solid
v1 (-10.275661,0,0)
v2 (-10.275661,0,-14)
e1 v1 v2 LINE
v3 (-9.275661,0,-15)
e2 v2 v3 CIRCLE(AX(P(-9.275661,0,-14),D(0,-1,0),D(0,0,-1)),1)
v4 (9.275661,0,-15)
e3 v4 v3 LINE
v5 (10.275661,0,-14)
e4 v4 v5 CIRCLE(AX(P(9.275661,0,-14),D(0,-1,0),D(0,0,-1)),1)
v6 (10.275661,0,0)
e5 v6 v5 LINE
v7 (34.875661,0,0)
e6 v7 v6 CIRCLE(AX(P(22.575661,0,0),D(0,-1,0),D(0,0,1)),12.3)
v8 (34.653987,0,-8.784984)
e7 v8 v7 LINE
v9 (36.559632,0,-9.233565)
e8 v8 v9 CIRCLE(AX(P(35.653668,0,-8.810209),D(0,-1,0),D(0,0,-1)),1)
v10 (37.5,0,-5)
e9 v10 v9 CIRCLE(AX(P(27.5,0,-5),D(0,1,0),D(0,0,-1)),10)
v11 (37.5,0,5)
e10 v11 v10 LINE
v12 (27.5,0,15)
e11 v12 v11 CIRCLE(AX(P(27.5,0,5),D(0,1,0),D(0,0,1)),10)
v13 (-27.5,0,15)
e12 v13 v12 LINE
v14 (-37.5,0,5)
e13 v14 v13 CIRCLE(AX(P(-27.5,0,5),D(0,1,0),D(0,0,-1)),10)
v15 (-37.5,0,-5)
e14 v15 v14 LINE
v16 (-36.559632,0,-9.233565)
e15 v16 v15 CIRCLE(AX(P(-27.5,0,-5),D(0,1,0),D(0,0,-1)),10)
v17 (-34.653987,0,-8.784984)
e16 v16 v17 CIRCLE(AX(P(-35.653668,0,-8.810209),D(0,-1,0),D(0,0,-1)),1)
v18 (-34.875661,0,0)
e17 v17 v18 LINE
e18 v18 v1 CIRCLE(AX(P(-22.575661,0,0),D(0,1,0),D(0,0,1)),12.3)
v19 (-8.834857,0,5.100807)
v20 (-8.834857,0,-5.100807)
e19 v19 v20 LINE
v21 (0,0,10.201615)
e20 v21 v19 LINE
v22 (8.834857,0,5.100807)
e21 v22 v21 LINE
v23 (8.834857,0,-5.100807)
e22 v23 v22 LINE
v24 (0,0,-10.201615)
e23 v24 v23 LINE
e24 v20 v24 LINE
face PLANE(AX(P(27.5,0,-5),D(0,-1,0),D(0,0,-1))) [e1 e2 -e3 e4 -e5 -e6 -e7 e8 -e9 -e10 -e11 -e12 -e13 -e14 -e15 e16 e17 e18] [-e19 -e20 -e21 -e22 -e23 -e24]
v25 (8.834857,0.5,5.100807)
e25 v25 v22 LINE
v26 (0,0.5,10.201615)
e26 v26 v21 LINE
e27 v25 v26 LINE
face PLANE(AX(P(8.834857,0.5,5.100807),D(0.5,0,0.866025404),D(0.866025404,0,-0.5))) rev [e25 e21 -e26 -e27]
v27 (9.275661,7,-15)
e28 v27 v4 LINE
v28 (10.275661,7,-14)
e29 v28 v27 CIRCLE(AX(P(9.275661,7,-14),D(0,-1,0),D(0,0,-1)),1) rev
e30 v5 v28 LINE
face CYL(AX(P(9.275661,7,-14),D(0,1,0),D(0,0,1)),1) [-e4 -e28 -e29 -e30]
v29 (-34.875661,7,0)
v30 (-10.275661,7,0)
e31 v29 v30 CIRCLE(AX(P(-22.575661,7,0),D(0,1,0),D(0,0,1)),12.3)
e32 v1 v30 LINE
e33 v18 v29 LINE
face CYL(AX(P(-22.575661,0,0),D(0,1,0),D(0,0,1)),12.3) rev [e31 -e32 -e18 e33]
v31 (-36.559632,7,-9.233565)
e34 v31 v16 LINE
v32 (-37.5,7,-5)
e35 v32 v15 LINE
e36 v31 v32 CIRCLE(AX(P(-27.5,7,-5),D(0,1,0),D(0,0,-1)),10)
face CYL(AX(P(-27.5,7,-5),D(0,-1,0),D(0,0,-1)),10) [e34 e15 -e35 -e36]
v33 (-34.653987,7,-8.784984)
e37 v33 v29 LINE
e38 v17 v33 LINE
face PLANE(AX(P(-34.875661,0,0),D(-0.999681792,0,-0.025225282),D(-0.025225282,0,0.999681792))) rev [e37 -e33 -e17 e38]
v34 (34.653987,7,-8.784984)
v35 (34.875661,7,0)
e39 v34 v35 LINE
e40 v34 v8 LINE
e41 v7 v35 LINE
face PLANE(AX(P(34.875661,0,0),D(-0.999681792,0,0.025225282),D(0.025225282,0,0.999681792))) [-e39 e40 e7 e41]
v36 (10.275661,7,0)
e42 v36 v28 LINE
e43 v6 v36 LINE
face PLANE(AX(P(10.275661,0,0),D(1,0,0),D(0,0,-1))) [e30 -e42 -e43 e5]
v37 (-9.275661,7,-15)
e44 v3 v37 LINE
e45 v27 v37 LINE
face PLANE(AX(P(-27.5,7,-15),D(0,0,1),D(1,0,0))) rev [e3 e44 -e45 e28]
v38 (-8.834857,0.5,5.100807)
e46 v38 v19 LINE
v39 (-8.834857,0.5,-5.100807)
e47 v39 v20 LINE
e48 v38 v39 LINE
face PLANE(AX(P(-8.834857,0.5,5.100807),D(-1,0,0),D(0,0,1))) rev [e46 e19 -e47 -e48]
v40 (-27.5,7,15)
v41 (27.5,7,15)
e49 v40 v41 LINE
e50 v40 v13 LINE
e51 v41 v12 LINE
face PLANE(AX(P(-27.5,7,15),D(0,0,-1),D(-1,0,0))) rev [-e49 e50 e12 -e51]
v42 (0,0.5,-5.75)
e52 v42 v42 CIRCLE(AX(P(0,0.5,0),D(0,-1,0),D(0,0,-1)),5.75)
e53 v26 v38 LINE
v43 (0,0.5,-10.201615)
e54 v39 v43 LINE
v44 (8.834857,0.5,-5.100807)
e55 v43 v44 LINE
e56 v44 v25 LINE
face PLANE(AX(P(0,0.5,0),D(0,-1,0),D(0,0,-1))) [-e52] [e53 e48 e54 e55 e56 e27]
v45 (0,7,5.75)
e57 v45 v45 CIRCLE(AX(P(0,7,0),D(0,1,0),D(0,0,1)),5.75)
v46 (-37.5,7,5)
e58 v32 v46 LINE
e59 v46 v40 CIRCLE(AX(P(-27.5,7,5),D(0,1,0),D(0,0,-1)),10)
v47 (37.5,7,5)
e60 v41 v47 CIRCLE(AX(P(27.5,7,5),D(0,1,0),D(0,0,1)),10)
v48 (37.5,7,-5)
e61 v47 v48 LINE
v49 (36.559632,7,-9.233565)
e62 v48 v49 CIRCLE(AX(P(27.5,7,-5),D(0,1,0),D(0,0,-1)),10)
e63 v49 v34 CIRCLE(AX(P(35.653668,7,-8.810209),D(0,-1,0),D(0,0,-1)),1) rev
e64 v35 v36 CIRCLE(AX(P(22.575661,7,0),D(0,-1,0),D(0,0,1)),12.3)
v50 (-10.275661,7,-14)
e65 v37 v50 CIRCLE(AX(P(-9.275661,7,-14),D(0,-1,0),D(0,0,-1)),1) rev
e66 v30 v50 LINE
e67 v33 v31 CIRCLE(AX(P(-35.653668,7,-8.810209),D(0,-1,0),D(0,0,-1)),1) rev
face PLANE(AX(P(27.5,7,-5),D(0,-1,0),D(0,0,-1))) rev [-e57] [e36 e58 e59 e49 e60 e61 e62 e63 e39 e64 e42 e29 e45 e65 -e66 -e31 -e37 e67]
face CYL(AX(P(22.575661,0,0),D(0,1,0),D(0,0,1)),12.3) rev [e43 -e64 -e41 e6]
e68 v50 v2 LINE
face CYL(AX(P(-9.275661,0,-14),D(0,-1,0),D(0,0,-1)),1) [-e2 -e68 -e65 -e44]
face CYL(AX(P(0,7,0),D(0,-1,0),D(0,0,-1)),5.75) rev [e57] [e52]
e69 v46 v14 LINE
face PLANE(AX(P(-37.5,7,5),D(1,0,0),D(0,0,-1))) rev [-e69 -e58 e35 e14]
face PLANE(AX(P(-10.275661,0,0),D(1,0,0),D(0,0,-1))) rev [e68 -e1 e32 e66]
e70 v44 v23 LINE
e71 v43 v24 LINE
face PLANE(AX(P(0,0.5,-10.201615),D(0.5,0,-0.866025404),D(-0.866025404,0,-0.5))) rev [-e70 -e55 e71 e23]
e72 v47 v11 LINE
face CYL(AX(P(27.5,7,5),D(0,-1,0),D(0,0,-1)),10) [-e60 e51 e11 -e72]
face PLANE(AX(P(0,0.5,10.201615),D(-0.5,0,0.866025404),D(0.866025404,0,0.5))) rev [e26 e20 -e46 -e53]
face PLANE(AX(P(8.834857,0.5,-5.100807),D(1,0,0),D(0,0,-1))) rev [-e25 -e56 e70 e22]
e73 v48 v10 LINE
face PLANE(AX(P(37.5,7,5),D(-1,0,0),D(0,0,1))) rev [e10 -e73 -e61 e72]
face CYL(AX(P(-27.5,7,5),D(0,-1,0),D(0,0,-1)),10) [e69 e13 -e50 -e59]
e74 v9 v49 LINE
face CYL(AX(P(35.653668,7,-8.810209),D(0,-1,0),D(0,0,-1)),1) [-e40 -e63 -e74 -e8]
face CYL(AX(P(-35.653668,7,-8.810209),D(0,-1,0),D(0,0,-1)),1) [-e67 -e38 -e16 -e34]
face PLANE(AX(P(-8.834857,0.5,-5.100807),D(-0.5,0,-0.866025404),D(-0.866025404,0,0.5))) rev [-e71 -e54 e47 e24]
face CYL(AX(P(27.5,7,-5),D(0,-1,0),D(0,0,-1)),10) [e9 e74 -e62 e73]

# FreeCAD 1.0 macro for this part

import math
import FreeCAD as App
import Part
import Sketcher
from FreeCAD import Vector
Q = App.Units.Quantity


def edges_at(feature, points):
    """Names of the edges that pass closest to the given points."""
    edges = feature.Shape.Edges
    near = lambda p: min(range(len(edges)), key=lambda i: edges[i].distToShape(Part.Vertex(*p))[0])
    return sorted({f"Edge{near(p) + 1}" for p in points})

doc = App.newDocument("Part")
body = doc.addObject("PartDesign::Body", "Body")

sketch1 = body.newObject("Sketcher::SketchObject", "Sketch")
sketch1.AttachmentSupport = (doc.getObject("XZ_Plane"), [""])
sketch1.MapMode = "FlatFace"
sketch1.addGeometry(Part.LineSegment(Vector(-28, 15, 0), Vector(28, 15, 0)), False)
sketch1.addGeometry(Part.ArcOfCircle(Part.Circle(Vector(28, 5, 0), Vector(0, 0, 1), 10), math.radians(0), math.radians(90)), False)
sketch1.addGeometry(Part.LineSegment(Vector(38, 5, 0), Vector(38, -5, 0)), False)
sketch1.addGeometry(Part.ArcOfCircle(Part.Circle(Vector(28, -5, 0), Vector(0, 0, 1), 10), math.radians(-90), math.radians(0)), False)
sketch1.addGeometry(Part.LineSegment(Vector(28, -15, 0), Vector(-28, -15, 0)), False)
sketch1.addGeometry(Part.ArcOfCircle(Part.Circle(Vector(-28, -5, 0), Vector(0, 0, 1), 10), math.radians(180), math.radians(270)), False)
sketch1.addGeometry(Part.LineSegment(Vector(-38, -5, 0), Vector(-38, 5, 0)), False)
sketch1.addGeometry(Part.ArcOfCircle(Part.Circle(Vector(-28, 5, 0), Vector(0, 0, 1), 10), math.radians(90), math.radians(180)), False)
sketch1.addGeometry(Part.Circle(Vector(0, 0, 0), Vector(0, 0, 1), 6), False)
sketch1.addConstraint(Sketcher.Constraint("Tangent", 0, 2, 1, 2))
sketch1.addConstraint(Sketcher.Constraint("Tangent", 1, 1, 2, 1))
sketch1.addConstraint(Sketcher.Constraint("Tangent", 2, 2, 3, 2))
sketch1.addConstraint(Sketcher.Constraint("Tangent", 3, 1, 4, 1))
sketch1.addConstraint(Sketcher.Constraint("Tangent", 4, 2, 5, 2))
sketch1.addConstraint(Sketcher.Constraint("Tangent", 5, 1, 6, 1))
sketch1.addConstraint(Sketcher.Constraint("Tangent", 6, 2, 7, 2))
sketch1.addConstraint(Sketcher.Constraint("Tangent", 7, 1, 0, 1))
sketch1.addConstraint(Sketcher.Constraint("Horizontal", 0))
sketch1.addConstraint(Sketcher.Constraint("Vertical", 2))
sketch1.addConstraint(Sketcher.Constraint("Horizontal", 4))
sketch1.addConstraint(Sketcher.Constraint("Vertical", 6))
sketch1.addConstraint(Sketcher.Constraint("Coincident", 8, 3, -1, 1))
sketch1.addConstraint(Sketcher.Constraint("Equal", 1, 3))
sketch1.addConstraint(Sketcher.Constraint("Equal", 3, 5))
sketch1.addConstraint(Sketcher.Constraint("Equal", 5, 7))
sketch1.addConstraint(Sketcher.Constraint("Symmetric", 1, 3, 5, 3, -1, 1))
sketch1.addConstraint(Sketcher.Constraint("Radius", 1, 10.0))
sketch1.addConstraint(Sketcher.Constraint("Diameter", 8, 11.5))
sketch1.addConstraint(Sketcher.Constraint("DistanceX", 0, 1, 0, 2, 55.0))
sketch1.addConstraint(Sketcher.Constraint("DistanceY", 2, 2, 2, 1, 10.0))
pad1 = body.newObject("PartDesign::Pad", "Pad")
pad1.Profile = sketch1
pad1.Length = 7
pad1.Reversed = True

sketch2 = body.newObject("Sketcher::SketchObject", "Sketch001")
sketch2.AttachmentSupport = (doc.getObject("XZ_Plane"), [""])
sketch2.MapMode = "FlatFace"
sketch2.AttachmentOffset = App.Placement(Vector(0, 0, -7), App.Rotation())
sketch2.addGeometry(Part.LineSegment(Vector(-34.6, -12.1, 0), Vector(-34.9, 0, 0)), False)
sketch2.addGeometry(Part.ArcOfCircle(Part.Circle(Vector(-22.6, 0, 0), Vector(0, 0, 1), 12.3), math.radians(0), math.radians(180)), False)
sketch2.addGeometry(Part.LineSegment(Vector(-10.3, 0, 0), Vector(-10.3, -15, 0)), False)
sketch2.addGeometry(Part.LineSegment(Vector(-10.3, -15, 0), Vector(-34.6, -15, 0)), False)
sketch2.addGeometry(Part.LineSegment(Vector(-34.6, -15, 0), Vector(-34.6, -12.1, 0)), False)
sketch2.addConstraint(Sketcher.Constraint("Coincident", 0, 2, 1, 2))
sketch2.addConstraint(Sketcher.Constraint("Tangent", 1, 1, 2, 1))
sketch2.addConstraint(Sketcher.Constraint("Coincident", 2, 2, 3, 1))
sketch2.addConstraint(Sketcher.Constraint("Coincident", 3, 2, 4, 1))
sketch2.addConstraint(Sketcher.Constraint("Coincident", 4, 2, 0, 1))
sketch2.addConstraint(Sketcher.Constraint("Vertical", 2))
sketch2.addConstraint(Sketcher.Constraint("Horizontal", 3))
sketch2.addConstraint(Sketcher.Constraint("Vertical", 4))
sketch2.addConstraint(Sketcher.Constraint("PointOnObject", 1, 3, -1))
sketch2.addConstraint(Sketcher.Constraint("PointOnObject", 0, 2, -1))
sketch2.addConstraint(Sketcher.Constraint("Radius", 1, 12.3))
sketch2.addConstraint(Sketcher.Constraint("DistanceY", 2, 2, 2, 1, 15.0))
sketch2.addConstraint(Sketcher.Constraint("Distance", 0, 12.07491))
sketch2.addConstraint(Sketcher.Constraint("DistanceX", 3, 2, 3, 1, 24.295407))
sketch2.addConstraint(Sketcher.Constraint("DistanceX", 1, 3, -1, 1, 22.575661))
pocket1 = body.newObject("PartDesign::Pocket", "Pocket")
pocket1.Profile = sketch2
pocket1.Length = 7
pocket1.Reversed = True
doc.recompute()

fillet = body.newObject("PartDesign::Fillet", "Fillet")
fillet.Base = (pocket1, edges_at(pocket1, [(-34.571, 3.5, -12.071)]))
fillet.Radius = 1
doc.recompute()

fillet2 = body.newObject("PartDesign::Fillet", "Fillet001")
fillet2.Base = (fillet, edges_at(fillet, [(-10.276, 3.5, -15)]))
fillet2.Radius = 1
doc.recompute()

mirrored = body.newObject("PartDesign::Mirrored", "Mirrored")
mirrored.Originals = [pocket1]
mirrored.MirrorPlane = (doc.getObject("YZ_Plane"), [""])
body.Tip = mirrored
doc.recompute()

fillet3 = body.newObject("PartDesign::Fillet", "Fillet002")
fillet3.Base = (mirrored, edges_at(mirrored, [(10.276, 3.5, -15)]))
fillet3.Radius = 1
doc.recompute()

fillet4 = body.newObject("PartDesign::Fillet", "Fillet003")
fillet4.Base = (fillet3, edges_at(fillet3, [(34.571, 3.5, -12.071)]))
fillet4.Radius = 1

sketch3 = body.newObject("Sketcher::SketchObject", "Sketch002")
sketch3.AttachmentSupport = (doc.getObject("XZ_Plane"), [""])
sketch3.MapMode = "FlatFace"
sketch3.addGeometry(Part.LineSegment(Vector(0, 10, 0), Vector(-9, 5, 0)), False)
sketch3.addGeometry(Part.LineSegment(Vector(-9, 5, 0), Vector(-9, -5, 0)), False)
sketch3.addGeometry(Part.LineSegment(Vector(-9, -5, 0), Vector(0, -10, 0)), False)
sketch3.addGeometry(Part.LineSegment(Vector(0, -10, 0), Vector(9, -5, 0)), False)
sketch3.addGeometry(Part.LineSegment(Vector(9, -5, 0), Vector(9, 5, 0)), False)
sketch3.addGeometry(Part.LineSegment(Vector(9, 5, 0), Vector(0, 10, 0)), False)
sketch3.addConstraint(Sketcher.Constraint("Coincident", 0, 2, 1, 1))
sketch3.addConstraint(Sketcher.Constraint("Coincident", 1, 2, 2, 1))
sketch3.addConstraint(Sketcher.Constraint("Coincident", 2, 2, 3, 1))
sketch3.addConstraint(Sketcher.Constraint("Coincident", 3, 2, 4, 1))
sketch3.addConstraint(Sketcher.Constraint("Coincident", 4, 2, 5, 1))
sketch3.addConstraint(Sketcher.Constraint("Coincident", 5, 2, 0, 1))
sketch3.addConstraint(Sketcher.Constraint("Vertical", 1))
sketch3.addConstraint(Sketcher.Constraint("Vertical", 4))
sketch3.addConstraint(Sketcher.Constraint("Symmetric", 0, 2, 3, 2, -1, 1))
sketch3.addConstraint(Sketcher.Constraint("Symmetric", 2, 2, 5, 2, -1, 1))
sketch3.addConstraint(Sketcher.Constraint("PointOnObject", 2, 2, -2))
sketch3.addConstraint(Sketcher.Constraint("Parallel", 2, 5))
sketch3.addConstraint(Sketcher.Constraint("Horizontal", 1, 2, 3, 2))
sketch3.addConstraint(Sketcher.Constraint("Angle", 0, Q("-150 deg")))
sketch3.addConstraint(Sketcher.Constraint("DistanceY", 1, 2, 1, 1, 10.201615))
sketch3.addConstraint(Sketcher.Constraint("DistanceY", 2, 2, 0, 2, 15.302422))
pocket2 = body.newObject("PartDesign::Pocket", "Pocket001")
pocket2.Profile = sketch3
pocket2.Length = 0.5

doc.recompute()
